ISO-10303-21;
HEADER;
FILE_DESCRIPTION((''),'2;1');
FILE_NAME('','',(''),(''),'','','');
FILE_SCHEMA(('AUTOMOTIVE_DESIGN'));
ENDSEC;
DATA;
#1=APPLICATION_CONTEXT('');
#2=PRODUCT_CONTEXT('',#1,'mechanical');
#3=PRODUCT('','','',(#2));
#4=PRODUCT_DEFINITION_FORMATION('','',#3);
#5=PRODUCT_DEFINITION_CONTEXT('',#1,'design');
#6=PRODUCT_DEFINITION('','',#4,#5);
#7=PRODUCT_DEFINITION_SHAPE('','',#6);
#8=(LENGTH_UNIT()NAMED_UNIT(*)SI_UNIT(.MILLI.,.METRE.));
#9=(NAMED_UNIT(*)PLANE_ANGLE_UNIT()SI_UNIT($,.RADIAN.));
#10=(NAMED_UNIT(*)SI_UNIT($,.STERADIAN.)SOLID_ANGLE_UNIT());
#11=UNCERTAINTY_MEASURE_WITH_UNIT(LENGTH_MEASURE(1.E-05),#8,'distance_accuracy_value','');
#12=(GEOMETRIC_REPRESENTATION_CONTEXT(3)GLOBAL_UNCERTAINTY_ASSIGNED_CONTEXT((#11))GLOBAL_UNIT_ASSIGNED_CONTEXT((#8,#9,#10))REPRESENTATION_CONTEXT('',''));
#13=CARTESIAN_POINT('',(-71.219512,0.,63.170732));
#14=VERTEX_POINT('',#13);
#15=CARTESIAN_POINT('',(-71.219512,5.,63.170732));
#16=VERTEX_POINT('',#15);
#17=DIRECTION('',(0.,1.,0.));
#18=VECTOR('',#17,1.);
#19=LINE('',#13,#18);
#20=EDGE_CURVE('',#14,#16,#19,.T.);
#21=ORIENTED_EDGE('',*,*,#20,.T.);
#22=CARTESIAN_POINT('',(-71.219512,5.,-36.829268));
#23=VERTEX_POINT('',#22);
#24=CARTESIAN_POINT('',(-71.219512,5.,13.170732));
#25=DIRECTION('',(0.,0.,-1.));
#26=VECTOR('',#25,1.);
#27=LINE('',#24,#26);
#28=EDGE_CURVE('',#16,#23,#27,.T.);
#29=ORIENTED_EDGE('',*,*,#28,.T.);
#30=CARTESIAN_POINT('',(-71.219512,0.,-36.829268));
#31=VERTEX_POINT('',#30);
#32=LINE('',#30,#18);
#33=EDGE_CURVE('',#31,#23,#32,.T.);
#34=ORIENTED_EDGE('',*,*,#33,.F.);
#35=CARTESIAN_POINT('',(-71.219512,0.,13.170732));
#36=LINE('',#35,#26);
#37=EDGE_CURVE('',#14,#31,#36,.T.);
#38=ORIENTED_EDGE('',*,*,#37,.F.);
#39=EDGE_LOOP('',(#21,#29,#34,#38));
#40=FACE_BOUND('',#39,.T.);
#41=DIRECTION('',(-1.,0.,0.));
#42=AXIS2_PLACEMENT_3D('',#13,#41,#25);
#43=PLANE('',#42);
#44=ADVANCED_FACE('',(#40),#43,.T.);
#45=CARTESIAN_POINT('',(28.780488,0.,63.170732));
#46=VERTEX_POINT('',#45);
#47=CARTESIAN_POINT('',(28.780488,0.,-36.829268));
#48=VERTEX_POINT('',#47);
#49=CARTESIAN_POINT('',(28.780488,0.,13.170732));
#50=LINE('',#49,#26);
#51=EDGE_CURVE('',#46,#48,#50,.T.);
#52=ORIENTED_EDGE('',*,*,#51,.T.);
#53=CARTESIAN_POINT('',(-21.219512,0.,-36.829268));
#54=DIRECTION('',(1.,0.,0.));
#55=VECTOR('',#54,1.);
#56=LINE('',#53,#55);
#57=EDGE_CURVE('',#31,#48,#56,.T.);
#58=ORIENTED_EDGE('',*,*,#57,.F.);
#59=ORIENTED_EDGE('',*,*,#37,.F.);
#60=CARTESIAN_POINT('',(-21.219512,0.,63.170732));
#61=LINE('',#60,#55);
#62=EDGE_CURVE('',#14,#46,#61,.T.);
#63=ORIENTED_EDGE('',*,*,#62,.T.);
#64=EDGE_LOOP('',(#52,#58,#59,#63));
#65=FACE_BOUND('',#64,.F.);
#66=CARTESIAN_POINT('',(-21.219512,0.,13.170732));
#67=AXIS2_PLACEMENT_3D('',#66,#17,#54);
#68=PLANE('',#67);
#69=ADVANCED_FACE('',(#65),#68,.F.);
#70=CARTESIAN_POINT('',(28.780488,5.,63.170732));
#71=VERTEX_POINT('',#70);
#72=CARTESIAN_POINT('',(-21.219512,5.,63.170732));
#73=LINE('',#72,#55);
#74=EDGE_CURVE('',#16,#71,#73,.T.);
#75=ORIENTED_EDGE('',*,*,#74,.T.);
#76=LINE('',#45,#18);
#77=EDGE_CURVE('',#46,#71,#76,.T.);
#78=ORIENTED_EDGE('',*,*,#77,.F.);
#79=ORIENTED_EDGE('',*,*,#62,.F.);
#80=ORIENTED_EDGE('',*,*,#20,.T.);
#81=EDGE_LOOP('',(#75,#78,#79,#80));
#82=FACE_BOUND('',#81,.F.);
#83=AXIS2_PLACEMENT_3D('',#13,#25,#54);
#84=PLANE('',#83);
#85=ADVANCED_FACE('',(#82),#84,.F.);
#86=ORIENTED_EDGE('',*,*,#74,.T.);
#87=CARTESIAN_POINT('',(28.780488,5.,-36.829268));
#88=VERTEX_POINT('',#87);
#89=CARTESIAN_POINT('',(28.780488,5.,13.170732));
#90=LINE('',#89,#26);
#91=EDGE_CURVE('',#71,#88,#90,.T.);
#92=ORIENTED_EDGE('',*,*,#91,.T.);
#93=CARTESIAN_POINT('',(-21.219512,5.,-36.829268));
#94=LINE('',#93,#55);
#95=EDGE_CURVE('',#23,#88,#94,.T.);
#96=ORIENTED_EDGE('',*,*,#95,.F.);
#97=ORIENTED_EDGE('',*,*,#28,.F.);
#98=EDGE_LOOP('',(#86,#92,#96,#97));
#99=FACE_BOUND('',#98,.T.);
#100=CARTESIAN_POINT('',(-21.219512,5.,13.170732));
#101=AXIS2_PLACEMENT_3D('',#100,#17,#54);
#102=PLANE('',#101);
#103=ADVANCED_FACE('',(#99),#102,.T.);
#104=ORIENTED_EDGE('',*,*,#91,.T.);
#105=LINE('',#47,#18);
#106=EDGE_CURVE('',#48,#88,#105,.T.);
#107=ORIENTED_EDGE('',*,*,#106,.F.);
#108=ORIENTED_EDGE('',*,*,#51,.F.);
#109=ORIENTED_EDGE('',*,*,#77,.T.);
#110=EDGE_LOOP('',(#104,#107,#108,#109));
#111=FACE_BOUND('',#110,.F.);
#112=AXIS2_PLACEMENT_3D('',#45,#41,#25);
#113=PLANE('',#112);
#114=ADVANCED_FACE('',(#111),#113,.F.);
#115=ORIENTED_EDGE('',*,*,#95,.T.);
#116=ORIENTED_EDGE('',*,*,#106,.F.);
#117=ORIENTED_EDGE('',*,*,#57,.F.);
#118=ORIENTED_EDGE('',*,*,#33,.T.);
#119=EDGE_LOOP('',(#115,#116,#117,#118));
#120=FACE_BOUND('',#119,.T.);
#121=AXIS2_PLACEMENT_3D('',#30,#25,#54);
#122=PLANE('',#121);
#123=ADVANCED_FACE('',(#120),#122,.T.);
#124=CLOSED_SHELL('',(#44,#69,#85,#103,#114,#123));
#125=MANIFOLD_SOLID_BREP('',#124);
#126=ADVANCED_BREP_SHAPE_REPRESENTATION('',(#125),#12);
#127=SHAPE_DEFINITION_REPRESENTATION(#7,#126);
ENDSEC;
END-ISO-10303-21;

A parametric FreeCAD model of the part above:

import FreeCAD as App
import Part
import Sketcher

V = App.Vector
Q = App.Units.Quantity


def add_polygon(sketch, points):
    """Adds a closed chain of lines whose ends are joined by coincident constraints."""
    first, n = sketch.GeometryCount, len(points)
    for a, b in zip(points, points[1:] + points[:1]):
        sketch.addGeometry(Part.LineSegment(App.Vector(*a, 0), App.Vector(*b, 0)), False)
    for i in range(n):
        sketch.addConstraint(Sketcher.Constraint("Coincident", first + i, 2, first + (i + 1) % n, 1))

doc = App.newDocument("Part")
body = doc.addObject("PartDesign::Body", "Body")

# Sketch on XZ plane
sketch1 = body.newObject("Sketcher::SketchObject", "Sketch")
sketch1.AttachmentSupport = (doc.getObject("XZ_Plane"), [""])
sketch1.MapMode = "FlatFace"
add_polygon(sketch1, [(-71, -37), (-71, 63), (29, 63), (29, -37)])  # lines 0-3
sketch1.addConstraint(Sketcher.Constraint("Vertical", 0))
sketch1.addConstraint(Sketcher.Constraint("Horizontal", 1))
sketch1.addConstraint(Sketcher.Constraint("Vertical", 2))
sketch1.addConstraint(Sketcher.Constraint("Horizontal", 3))
sketch1.addConstraint(Sketcher.Constraint("Equal", 3, 0))
sketch1.addConstraint(Sketcher.Constraint("DistanceX", 1, 1, 1, 2, Q("100 mm")))
sketch1.addConstraint(Sketcher.Constraint("DistanceY", -1, 1, 0, 2, Q("63.170732 mm")))
sketch1.addConstraint(Sketcher.Constraint("DistanceX", 0, 2, -1, 1, Q("71.219512 mm")))
pad1 = body.newObject("PartDesign::Pad", "Pad")
pad1.Profile = sketch1
pad1.Length = 5
pad1.Reversed = True

doc.recompute()
